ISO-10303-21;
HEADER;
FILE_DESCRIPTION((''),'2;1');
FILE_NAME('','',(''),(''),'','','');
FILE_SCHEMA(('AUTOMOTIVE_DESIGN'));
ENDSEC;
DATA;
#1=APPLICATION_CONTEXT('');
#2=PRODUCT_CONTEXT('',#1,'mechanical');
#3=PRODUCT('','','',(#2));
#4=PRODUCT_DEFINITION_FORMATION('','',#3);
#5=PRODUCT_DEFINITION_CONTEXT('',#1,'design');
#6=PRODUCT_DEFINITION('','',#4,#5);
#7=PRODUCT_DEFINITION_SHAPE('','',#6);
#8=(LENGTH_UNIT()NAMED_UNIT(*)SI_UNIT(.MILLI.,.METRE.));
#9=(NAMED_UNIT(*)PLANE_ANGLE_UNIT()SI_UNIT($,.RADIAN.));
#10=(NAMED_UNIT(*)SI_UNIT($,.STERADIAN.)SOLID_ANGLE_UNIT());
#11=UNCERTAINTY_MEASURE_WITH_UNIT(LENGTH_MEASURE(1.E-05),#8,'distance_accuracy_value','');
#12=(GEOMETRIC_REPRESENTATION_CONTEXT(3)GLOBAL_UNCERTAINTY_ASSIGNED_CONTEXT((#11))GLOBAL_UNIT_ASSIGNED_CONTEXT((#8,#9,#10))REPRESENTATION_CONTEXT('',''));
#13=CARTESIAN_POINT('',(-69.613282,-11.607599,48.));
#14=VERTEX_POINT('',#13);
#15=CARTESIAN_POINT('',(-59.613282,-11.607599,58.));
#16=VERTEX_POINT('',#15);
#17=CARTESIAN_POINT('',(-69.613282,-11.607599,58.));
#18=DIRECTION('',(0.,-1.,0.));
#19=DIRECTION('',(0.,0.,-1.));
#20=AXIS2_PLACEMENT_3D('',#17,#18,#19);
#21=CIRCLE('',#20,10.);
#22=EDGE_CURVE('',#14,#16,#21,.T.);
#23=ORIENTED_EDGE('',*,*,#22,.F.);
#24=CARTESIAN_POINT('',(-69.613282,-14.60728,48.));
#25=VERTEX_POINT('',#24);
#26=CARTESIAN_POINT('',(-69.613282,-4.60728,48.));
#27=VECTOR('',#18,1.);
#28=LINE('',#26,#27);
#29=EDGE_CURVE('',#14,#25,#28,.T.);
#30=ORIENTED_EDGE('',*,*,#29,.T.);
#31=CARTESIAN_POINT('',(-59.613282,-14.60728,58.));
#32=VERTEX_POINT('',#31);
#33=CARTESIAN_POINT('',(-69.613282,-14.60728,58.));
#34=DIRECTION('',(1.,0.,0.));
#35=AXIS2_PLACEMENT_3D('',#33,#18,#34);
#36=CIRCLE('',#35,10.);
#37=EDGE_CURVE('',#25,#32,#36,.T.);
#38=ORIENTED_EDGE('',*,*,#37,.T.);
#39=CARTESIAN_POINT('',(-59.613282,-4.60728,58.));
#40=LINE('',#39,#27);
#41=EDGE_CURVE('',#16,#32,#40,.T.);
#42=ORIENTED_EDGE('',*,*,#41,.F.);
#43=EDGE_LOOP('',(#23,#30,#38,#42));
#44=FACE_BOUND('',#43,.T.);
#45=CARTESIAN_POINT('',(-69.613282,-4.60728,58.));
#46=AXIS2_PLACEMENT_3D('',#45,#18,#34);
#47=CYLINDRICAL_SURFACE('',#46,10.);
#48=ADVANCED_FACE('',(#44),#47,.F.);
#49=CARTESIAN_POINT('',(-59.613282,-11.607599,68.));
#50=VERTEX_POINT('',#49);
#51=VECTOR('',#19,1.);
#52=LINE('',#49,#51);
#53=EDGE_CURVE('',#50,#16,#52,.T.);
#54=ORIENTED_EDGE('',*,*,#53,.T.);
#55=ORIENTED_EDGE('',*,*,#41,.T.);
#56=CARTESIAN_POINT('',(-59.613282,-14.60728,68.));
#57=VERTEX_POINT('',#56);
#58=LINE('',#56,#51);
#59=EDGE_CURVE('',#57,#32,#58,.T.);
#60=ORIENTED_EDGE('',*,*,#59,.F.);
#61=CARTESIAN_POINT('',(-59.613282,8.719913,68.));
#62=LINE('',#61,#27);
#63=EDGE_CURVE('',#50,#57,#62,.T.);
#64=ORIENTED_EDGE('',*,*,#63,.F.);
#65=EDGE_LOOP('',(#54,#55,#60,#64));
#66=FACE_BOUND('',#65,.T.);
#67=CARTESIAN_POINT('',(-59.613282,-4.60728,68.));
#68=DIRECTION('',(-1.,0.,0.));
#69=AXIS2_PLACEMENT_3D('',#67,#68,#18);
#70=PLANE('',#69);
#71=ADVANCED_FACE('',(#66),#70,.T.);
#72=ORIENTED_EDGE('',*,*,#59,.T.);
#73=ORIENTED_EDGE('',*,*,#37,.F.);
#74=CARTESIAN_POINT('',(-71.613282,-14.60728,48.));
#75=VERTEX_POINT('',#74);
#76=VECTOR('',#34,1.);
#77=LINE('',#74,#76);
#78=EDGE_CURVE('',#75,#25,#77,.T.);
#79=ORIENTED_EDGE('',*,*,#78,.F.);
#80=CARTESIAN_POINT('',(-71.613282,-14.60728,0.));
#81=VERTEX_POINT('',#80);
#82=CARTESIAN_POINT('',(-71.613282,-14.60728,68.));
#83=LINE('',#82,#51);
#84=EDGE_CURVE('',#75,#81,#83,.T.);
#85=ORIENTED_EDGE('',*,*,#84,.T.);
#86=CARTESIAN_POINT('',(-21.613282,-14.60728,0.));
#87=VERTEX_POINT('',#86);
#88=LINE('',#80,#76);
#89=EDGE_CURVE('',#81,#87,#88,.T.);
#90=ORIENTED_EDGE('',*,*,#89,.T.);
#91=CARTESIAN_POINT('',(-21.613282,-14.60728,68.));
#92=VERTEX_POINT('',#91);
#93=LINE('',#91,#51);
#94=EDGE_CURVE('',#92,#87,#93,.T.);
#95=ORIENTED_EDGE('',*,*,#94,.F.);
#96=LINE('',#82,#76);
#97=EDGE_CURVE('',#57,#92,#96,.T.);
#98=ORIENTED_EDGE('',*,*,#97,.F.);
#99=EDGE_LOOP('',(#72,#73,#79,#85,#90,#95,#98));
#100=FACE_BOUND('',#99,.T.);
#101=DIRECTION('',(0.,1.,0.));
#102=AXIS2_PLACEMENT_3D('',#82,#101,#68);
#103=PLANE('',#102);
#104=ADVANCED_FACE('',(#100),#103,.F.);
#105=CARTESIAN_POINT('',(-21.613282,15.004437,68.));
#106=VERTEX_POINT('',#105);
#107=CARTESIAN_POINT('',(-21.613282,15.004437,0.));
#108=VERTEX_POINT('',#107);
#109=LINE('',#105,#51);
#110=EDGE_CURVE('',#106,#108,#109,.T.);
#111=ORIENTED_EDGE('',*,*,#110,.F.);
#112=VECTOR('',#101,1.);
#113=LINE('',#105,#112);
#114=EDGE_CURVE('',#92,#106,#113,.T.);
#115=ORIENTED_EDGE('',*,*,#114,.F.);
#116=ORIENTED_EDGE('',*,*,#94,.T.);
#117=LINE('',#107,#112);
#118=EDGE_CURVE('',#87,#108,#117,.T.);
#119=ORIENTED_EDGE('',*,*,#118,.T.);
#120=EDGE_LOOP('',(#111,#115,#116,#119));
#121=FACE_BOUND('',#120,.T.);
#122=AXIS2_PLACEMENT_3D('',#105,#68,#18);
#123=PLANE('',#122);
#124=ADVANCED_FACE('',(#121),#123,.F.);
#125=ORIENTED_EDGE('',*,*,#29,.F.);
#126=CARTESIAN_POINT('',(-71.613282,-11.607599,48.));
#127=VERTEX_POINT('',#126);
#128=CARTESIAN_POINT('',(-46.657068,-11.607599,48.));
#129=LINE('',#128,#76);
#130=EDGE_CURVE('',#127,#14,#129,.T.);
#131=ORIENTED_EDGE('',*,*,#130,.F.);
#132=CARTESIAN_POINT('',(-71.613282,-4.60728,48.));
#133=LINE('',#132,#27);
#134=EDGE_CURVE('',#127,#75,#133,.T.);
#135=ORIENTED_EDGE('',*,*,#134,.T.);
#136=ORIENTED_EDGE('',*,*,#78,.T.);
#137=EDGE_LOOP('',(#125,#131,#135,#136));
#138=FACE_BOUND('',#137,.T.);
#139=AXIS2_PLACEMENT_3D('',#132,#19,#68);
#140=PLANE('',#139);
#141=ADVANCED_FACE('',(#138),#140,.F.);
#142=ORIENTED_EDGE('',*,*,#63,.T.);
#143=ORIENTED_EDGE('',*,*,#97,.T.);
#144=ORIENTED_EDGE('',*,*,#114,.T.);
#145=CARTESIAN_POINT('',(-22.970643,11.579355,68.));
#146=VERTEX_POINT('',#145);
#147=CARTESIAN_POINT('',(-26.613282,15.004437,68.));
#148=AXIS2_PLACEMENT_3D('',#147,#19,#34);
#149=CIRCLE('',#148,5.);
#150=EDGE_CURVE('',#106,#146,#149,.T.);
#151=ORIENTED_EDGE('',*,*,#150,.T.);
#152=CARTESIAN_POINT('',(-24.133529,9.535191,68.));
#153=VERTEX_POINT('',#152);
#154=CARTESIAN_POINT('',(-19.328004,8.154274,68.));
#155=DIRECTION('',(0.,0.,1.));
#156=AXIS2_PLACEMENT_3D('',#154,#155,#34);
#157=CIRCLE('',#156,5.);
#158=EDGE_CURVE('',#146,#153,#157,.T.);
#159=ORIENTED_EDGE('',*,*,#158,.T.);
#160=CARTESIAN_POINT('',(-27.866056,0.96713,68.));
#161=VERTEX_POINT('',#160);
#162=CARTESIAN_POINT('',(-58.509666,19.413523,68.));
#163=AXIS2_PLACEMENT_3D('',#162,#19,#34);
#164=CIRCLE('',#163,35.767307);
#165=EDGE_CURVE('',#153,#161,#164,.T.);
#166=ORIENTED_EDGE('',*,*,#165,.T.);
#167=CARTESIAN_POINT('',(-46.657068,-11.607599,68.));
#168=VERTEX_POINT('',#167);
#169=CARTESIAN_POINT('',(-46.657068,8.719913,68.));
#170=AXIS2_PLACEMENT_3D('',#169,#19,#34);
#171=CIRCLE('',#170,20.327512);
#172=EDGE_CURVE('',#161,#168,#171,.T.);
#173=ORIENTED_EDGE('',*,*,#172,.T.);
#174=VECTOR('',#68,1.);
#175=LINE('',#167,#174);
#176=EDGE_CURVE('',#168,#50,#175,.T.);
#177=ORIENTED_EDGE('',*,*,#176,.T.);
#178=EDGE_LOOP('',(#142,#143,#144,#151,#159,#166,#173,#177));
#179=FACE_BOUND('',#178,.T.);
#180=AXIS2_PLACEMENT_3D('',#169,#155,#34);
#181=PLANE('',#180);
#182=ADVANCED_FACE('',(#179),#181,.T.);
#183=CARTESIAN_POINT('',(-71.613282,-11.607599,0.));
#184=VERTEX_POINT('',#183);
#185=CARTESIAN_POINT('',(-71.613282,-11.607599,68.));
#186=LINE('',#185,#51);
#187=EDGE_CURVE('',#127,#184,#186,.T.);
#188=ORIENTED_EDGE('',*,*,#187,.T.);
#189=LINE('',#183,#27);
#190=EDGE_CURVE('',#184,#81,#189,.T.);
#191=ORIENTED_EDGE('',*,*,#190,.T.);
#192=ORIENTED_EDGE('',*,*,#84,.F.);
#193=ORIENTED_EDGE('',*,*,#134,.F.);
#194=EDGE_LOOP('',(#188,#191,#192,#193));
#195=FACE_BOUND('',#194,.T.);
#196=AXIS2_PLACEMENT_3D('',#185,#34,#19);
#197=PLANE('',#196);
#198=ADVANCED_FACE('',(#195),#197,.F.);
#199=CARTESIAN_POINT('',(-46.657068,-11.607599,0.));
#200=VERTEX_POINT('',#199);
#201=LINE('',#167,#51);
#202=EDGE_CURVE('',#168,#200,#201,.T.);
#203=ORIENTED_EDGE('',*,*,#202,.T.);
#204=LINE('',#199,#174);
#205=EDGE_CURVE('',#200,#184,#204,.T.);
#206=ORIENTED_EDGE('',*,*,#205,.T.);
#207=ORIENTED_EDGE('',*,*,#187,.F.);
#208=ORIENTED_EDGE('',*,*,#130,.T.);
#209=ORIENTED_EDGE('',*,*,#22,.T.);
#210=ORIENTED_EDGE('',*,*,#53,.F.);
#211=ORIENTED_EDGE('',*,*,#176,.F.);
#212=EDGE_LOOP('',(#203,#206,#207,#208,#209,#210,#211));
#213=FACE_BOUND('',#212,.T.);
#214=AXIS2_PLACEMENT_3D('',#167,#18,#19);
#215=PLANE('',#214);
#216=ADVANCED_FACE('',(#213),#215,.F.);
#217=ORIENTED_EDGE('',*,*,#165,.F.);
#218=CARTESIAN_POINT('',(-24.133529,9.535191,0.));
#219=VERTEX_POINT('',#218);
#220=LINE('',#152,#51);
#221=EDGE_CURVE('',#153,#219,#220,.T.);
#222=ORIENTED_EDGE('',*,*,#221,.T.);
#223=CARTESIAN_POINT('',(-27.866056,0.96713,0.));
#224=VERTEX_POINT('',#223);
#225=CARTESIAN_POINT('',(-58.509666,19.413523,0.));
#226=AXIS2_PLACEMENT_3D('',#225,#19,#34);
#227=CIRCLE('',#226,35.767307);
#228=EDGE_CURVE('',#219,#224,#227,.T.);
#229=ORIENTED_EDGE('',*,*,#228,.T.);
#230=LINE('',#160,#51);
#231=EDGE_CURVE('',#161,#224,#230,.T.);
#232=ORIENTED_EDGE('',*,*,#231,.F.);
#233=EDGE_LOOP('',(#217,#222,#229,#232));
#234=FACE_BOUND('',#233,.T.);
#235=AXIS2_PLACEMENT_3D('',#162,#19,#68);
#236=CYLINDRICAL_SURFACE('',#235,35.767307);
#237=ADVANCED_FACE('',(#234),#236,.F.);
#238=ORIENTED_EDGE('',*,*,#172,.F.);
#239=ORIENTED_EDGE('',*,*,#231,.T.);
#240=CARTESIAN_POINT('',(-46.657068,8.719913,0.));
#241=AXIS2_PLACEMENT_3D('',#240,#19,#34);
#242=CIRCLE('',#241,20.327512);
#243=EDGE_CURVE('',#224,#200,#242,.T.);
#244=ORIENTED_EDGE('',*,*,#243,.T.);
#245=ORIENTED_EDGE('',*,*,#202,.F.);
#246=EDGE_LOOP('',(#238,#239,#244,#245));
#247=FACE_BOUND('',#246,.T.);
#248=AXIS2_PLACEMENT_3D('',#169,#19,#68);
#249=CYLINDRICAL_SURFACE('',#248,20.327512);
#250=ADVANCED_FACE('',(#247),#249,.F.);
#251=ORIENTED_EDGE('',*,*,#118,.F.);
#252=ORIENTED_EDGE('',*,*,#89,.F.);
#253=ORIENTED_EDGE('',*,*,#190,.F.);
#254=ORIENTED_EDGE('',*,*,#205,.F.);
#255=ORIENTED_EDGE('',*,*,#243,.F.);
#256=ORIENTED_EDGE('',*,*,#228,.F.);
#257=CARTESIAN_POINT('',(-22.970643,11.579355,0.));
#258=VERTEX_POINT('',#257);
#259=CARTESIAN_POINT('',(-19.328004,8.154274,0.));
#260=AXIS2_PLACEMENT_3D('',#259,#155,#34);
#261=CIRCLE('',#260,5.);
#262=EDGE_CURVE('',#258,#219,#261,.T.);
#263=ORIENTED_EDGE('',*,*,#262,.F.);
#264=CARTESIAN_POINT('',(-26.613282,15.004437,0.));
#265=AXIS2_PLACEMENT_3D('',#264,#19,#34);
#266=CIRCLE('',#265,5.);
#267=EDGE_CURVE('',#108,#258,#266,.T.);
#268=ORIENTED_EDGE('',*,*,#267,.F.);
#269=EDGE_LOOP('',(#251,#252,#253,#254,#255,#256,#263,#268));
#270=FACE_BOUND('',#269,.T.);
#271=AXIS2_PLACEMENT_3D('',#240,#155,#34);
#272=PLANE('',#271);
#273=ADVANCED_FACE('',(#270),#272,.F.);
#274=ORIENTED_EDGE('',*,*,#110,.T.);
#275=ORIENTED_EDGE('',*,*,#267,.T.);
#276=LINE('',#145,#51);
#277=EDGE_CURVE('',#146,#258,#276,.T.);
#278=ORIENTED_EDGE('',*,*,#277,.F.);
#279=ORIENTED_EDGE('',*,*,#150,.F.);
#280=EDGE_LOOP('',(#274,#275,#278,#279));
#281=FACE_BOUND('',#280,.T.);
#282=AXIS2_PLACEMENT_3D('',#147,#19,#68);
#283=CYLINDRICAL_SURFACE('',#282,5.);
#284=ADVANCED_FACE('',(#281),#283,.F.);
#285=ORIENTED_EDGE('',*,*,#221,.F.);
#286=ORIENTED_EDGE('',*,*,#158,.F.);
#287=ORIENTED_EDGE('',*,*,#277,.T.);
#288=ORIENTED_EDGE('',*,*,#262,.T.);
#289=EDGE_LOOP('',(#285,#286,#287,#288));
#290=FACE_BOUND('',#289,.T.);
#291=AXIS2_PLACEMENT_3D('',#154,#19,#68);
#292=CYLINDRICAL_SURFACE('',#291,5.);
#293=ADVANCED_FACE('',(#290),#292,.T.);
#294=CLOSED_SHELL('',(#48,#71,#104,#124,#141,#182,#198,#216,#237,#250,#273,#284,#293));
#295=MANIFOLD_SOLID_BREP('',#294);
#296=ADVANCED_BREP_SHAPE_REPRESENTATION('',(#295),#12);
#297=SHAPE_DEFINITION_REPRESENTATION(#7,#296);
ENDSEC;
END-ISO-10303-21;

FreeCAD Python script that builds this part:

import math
import FreeCAD as App
import Part
import Sketcher

V = App.Vector
Q = App.Units.Quantity

doc = App.newDocument("Part")
body = doc.addObject("PartDesign::Body", "Body")

# Sketch on XY plane
sketch1 = doc.addObject("Sketcher::SketchObject", "Sketch")
body.addObject(sketch1)
sketch1.AttachmentSupport = (doc.XY_Plane, [""])
sketch1.MapMode = "FlatFace"
sketch1.addGeometry([
    Part.LineSegment(V(-46.657068, -11.607599, 0), V(-71.613282, -11.607599, 0)),  # 0
    Part.LineSegment(V(-71.613282, -11.607599, 0), V(-71.613282, -14.60728, 0)),  # 1
    Part.LineSegment(V(-71.613282, -14.60728, 0), V(-21.613282, -14.60728, 0)),  # 2
    Part.LineSegment(V(-21.613282, -14.60728, 0), V(-21.613282, 15.004437, 0)),  # 3
    Part.ArcOfCircle(Part.Circle(V(-26.613282, 15.004437, 0), V(0, 0, 1), 5), math.radians(-43.236885), math.radians(0)),  # 4
    Part.ArcOfCircle(Part.Circle(V(-19.328004, 8.154274, 0), V(0, 0, 1), 5), math.radians(136.763115), math.radians(163.967457)),  # 5
    Part.ArcOfCircle(Part.Circle(V(-58.509666, 19.413523, 0), V(0, 0, 1), 35.767307), math.radians(-31.046486), math.radians(-16.032543)),  # 6
    Part.ArcOfCircle(Part.Circle(V(-46.657068, 8.719913, 0), V(0, 0, 1), 20.327512), math.radians(-90), math.radians(-22.420033)),  # 7
], False)
sketch1.addConstraint([
    Sketcher.Constraint("Coincident", 0, 2, 1, 1),
    Sketcher.Constraint("Coincident", 1, 2, 2, 1),
    Sketcher.Constraint("Coincident", 2, 2, 3, 1),
    Sketcher.Constraint("Tangent", 3, 2, 4, 2),
    Sketcher.Constraint("Tangent", 4, 1, 5, 1),
    Sketcher.Constraint("Tangent", 5, 2, 6, 2),
    Sketcher.Constraint("Coincident", 6, 1, 7, 2),
    Sketcher.Constraint("Tangent", 7, 1, 0, 1),
    Sketcher.Constraint("Horizontal", 0),
    Sketcher.Constraint("Vertical", 1),
    Sketcher.Constraint("Horizontal", 2),
    Sketcher.Constraint("Vertical", 3),
    Sketcher.Constraint("Equal", 4, 5),
    Sketcher.Constraint("Radius", 4, Q("5 mm")),
    Sketcher.Constraint("DistanceX", 2, 1, 2, 2, Q("50 mm")),
    Sketcher.Constraint("Radius", 6, Q("35.767307 mm")),
    Sketcher.Constraint("Radius", 7, Q("20.327512 mm")),
    Sketcher.Constraint("DistanceY", 1, 2, 1, 1, Q("2.99968 mm")),
    Sketcher.Constraint("DistanceY", 0, 2, -1, 1, Q("11.607599 mm")),
    Sketcher.Constraint("DistanceX", 6, 3, 7, 3, Q("11.852598 mm")),
    Sketcher.Constraint("DistanceX", 0, 2, 0, 1, Q("24.956214 mm")),
    Sketcher.Constraint("DistanceY", 3, 1, 3, 2, Q("29.611716 mm")),
    Sketcher.Constraint("DistanceX", 4, 3, -1, 1, Q("26.613282 mm")),
    Sketcher.Constraint("DistanceX", 5, 2, -1, 1, Q("24.133529 mm")),
])
pad1 = doc.addObject("PartDesign::Pad", "Pad")
body.addObject(pad1)
pad1.Profile = sketch1
pad1.Length = 68

# Sketch on XZ plane
sketch2 = doc.addObject("Sketcher::SketchObject", "Sketch001")
body.addObject(sketch2)
sketch2.AttachmentSupport = (doc.XZ_Plane, [""])
sketch2.MapMode = "FlatFace"
sketch2.AttachmentOffset = App.Placement(V(0, 0, 14.60728), App.Rotation())
sketch2.addGeometry([
    Part.LineSegment(V(-59.613282, 68, 0), V(-71.613282, 68, 0)),  # 0
    Part.LineSegment(V(-71.613282, 68, 0), V(-71.613282, 48, 0)),  # 1
    Part.LineSegment(V(-71.613282, 48, 0), V(-69.613282, 48, 0)),  # 2
    Part.ArcOfCircle(Part.Circle(V(-69.613282, 58, 0), V(0, 0, 1), 10), math.radians(-90), math.radians(0)),  # 3
    Part.LineSegment(V(-59.613282, 58, 0), V(-59.613282, 68, 0)),  # 4
], False)
sketch2.addConstraint([
    Sketcher.Constraint("Coincident", 0, 2, 1, 1),
    Sketcher.Constraint("Coincident", 1, 2, 2, 1),
    Sketcher.Constraint("Tangent", 2, 2, 3, 1),
    Sketcher.Constraint("Tangent", 3, 2, 4, 1),
    Sketcher.Constraint("Coincident", 4, 2, 0, 1),
    Sketcher.Constraint("Horizontal", 0),
    Sketcher.Constraint("Vertical", 1),
    Sketcher.Constraint("Horizontal", 2),
    Sketcher.Constraint("Vertical", 4),
    Sketcher.Constraint("Radius", 3, Q("10 mm")),
    Sketcher.Constraint("DistanceX", 0, 2, 0, 1, Q("12 mm")),
    Sketcher.Constraint("DistanceY", 1, 2, 1, 1, Q("20 mm")),
    Sketcher.Constraint("DistanceY", -1, 1, 3, 3, Q("58 mm")),
    Sketcher.Constraint("DistanceX", 3, 3, -1, 1, Q("69.613282 mm")),
])
pocket1 = doc.addObject("PartDesign::Pocket", "Pocket")
body.addObject(pocket1)
pocket1.Profile = sketch2
pocket1.Length = 10

doc.recompute()
